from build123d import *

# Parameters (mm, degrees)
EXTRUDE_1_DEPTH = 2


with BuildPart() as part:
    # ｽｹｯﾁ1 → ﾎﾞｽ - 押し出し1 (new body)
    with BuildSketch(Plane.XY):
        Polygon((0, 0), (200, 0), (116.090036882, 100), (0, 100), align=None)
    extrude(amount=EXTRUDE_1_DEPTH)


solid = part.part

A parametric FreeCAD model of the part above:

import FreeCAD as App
import Part
import Sketcher

V = App.Vector
Q = App.Units.Quantity


def add_polygon(sketch, points):
    """Adds a closed chain of lines whose ends are joined by coincident constraints."""
    first, n = sketch.GeometryCount, len(points)
    for a, b in zip(points, points[1:] + points[:1]):
        sketch.addGeometry(Part.LineSegment(App.Vector(*a, 0), App.Vector(*b, 0)), False)
    for i in range(n):
        sketch.addConstraint(Sketcher.Constraint("Coincident", first + i, 2, first + (i + 1) % n, 1))

doc = App.newDocument("Part")
params = doc.addObject("Spreadsheet::Sheet", "Params")
for row, (alias, value) in enumerate([
    ("sketch1_width", "200 mm"),
    ("sketch1_height", "100 mm"),
    ("pad1_length", "2 mm"),
], start=1):
    params.set(f"A{row}", alias)
    params.set(f"B{row}", "=" + value)
    params.setAlias(f"B{row}", alias)

body = doc.addObject("PartDesign::Body", "Body")

# Sketch on XY plane
sketch1 = body.newObject("Sketcher::SketchObject", "Sketch")
sketch1.AttachmentSupport = (doc.getObject("XY_Plane"), [""])
sketch1.MapMode = "FlatFace"
add_polygon(sketch1, [(0, 0), (200, 0), (116.090037, 100), (0, 100)])  # lines 0-3
sketch1.addConstraint([
    Sketcher.Constraint("Horizontal", 0),
    Sketcher.Constraint("Horizontal", 2),
    Sketcher.Constraint("Vertical", 3),
    Sketcher.Constraint("Coincident", 3, 2, -1, 1),
    Sketcher.Constraint("DistanceX", 0, 1, 0, 2, Q("200 mm")),
    Sketcher.Constraint("DistanceY", 3, 2, 3, 1, Q("100 mm")),
    Sketcher.Constraint("Angle", 1, Q("130 deg")),
])
sketch1.setExpression("Constraints[8]", "Params.sketch1_width")
sketch1.setExpression("Constraints[9]", "Params.sketch1_height")
pad1 = body.newObject("PartDesign::Pad", "Pad")
pad1.Profile = sketch1
pad1.setExpression("Length", "Params.pad1_length")

doc.recompute()
